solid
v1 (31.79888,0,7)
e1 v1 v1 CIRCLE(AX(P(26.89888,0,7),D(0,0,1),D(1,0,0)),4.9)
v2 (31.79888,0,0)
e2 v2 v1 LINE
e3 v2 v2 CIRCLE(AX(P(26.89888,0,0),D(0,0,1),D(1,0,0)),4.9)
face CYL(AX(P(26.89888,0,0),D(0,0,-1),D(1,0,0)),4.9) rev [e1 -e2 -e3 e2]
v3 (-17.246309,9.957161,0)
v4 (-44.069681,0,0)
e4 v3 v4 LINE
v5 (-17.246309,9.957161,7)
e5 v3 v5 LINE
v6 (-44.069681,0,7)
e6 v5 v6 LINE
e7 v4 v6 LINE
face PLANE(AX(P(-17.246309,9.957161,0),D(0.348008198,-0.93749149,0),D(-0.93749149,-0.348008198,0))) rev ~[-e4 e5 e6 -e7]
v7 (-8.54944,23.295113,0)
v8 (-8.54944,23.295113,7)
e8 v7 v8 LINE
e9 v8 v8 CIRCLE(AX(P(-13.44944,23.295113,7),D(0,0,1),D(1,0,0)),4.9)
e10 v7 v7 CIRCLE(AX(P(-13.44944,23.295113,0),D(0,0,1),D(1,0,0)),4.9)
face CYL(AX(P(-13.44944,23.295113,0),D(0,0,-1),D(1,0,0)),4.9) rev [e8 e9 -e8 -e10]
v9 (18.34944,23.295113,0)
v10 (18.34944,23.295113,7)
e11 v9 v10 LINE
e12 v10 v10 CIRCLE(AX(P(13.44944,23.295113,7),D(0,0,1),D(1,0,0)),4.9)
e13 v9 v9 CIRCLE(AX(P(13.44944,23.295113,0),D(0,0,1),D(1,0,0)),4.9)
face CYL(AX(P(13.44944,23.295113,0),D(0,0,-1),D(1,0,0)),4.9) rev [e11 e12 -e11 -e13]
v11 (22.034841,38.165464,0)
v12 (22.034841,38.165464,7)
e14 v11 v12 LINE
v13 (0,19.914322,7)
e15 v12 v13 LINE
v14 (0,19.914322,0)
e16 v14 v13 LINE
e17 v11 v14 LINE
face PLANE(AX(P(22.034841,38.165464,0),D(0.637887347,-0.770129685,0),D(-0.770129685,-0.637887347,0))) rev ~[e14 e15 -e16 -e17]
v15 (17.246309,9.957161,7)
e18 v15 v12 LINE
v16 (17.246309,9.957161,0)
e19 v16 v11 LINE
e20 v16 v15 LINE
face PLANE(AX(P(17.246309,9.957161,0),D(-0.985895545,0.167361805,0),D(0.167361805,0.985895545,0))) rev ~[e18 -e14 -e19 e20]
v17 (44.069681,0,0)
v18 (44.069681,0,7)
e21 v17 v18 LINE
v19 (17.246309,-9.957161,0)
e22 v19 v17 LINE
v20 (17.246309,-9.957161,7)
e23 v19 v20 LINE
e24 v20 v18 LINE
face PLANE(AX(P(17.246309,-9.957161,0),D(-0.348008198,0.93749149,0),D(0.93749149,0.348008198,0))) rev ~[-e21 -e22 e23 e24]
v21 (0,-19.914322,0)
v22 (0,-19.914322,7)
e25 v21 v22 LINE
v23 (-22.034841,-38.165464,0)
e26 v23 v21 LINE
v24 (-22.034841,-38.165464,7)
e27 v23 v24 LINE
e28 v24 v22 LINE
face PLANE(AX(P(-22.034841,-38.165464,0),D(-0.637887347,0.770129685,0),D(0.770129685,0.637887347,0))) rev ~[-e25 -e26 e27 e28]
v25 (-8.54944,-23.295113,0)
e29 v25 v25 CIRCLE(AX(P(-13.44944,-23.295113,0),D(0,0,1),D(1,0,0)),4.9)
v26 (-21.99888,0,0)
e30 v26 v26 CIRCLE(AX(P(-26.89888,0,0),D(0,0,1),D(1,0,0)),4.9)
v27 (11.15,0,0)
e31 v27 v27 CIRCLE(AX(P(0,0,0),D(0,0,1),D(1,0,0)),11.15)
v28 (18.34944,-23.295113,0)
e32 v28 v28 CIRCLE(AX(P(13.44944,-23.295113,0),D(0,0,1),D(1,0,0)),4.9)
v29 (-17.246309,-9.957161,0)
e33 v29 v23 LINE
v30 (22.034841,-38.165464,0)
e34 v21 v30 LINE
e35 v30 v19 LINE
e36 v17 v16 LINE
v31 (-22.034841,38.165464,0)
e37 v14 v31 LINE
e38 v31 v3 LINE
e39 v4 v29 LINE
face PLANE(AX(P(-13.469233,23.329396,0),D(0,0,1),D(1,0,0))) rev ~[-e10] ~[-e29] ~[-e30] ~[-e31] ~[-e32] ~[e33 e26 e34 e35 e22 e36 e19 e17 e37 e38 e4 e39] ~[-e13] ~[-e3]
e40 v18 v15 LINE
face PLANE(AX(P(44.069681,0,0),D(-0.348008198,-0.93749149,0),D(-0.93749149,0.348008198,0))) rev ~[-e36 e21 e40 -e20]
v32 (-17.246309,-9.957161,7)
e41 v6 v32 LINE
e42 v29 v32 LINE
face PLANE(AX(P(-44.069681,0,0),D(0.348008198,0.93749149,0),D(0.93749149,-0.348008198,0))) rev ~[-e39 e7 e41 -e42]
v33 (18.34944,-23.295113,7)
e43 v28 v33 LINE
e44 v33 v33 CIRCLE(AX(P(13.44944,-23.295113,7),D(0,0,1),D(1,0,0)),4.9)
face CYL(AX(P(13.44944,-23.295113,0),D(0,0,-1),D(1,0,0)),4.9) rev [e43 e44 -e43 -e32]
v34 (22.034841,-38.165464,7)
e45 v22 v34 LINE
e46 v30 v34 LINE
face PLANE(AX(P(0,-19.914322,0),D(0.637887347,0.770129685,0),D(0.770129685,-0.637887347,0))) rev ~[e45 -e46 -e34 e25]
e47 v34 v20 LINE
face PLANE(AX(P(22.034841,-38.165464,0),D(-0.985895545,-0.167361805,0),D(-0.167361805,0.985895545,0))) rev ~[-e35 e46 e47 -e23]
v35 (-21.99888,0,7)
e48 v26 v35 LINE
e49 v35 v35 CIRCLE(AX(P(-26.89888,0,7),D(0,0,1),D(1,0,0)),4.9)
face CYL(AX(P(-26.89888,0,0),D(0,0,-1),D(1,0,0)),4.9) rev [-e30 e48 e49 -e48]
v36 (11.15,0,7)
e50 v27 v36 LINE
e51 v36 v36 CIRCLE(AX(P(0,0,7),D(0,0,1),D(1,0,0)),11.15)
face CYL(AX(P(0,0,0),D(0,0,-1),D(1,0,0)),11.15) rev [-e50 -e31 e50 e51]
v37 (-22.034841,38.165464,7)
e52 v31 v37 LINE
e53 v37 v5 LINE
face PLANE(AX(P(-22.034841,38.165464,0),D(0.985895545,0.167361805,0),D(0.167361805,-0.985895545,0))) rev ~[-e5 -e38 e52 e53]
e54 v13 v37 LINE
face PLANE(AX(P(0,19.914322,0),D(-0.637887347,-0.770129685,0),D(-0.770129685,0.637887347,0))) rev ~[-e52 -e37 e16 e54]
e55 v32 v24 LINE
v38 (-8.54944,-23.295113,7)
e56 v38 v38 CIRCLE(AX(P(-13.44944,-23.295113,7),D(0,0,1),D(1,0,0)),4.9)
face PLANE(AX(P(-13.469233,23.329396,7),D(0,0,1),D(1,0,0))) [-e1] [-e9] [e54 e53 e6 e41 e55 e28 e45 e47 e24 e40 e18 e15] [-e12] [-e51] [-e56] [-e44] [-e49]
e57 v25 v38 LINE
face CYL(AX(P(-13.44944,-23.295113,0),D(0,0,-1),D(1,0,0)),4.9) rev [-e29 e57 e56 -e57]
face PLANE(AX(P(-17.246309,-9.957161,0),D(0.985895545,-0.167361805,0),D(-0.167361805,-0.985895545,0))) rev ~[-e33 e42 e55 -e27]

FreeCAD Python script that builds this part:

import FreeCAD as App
import Part
import Sketcher
from FreeCAD import Vector
Q = App.Units.Quantity


def add_polygon(sketch, points):
    """Adds a closed chain of lines whose ends are joined by coincident constraints."""
    first, n = sketch.GeometryCount, len(points)
    for a, b in zip(points, points[1:] + points[:1]):
        sketch.addGeometry(Part.LineSegment(App.Vector(*a, 0), App.Vector(*b, 0)), False)
    for i in range(n):
        sketch.addConstraint(Sketcher.Constraint("Coincident", first + i, 2, first + (i + 1) % n, 1))

doc = App.newDocument("Part")
body = doc.addObject("PartDesign::Body", "Body")

sketch1 = body.newObject("Sketcher::SketchObject", "Sketch")
sketch1.AttachmentSupport = (doc.getObject("XY_Plane"), [""])
sketch1.MapMode = "FlatFace"
add_polygon(sketch1, [(0, 19.9), (-22, 38.2), (-17.2, 10), (-44.1, 0), (-17.2, -10), (-22, -38.2), (0, -19.9), (22, -38.2), (17.2, -10), (44.1, 0), (17.2, 10), (22, 38.2)])
sketch1.addGeometry(Part.Circle(Vector(-13.4, -23.3, 0), Vector(0, 0, 1), 4.9), False)
sketch1.addGeometry(Part.Circle(Vector(13.4, -23.3, 0), Vector(0, 0, 1), 4.9), False)
sketch1.addGeometry(Part.Circle(Vector(-26.9, 0, 0), Vector(0, 0, 1), 4.9), False)
sketch1.addGeometry(Part.Circle(Vector(-13.4, 23.3, 0), Vector(0, 0, 1), 4.9), False)
sketch1.addGeometry(Part.Circle(Vector(0, 0, 0), Vector(0, 0, 1), 11.2), False)
sketch1.addGeometry(Part.Circle(Vector(26.9, 0, 0), Vector(0, 0, 1), 4.9), False)
sketch1.addGeometry(Part.Circle(Vector(13.4, 23.3, 0), Vector(0, 0, 1), 4.9), False)
sketch1.addConstraint(Sketcher.Constraint("Coincident", 16, 3, -1, 1))
sketch1.addConstraint(Sketcher.Constraint("Equal", 12, 13))
sketch1.addConstraint(Sketcher.Constraint("Equal", 13, 14))
sketch1.addConstraint(Sketcher.Constraint("Equal", 14, 15))
sketch1.addConstraint(Sketcher.Constraint("Equal", 15, 17))
sketch1.addConstraint(Sketcher.Constraint("Equal", 17, 18))
sketch1.addConstraint(Sketcher.Constraint("Symmetric", 13, 3, 15, 3, -1, 1))
sketch1.addConstraint(Sketcher.Constraint("Symmetric", 14, 3, 17, 3, -1, 1))
sketch1.addConstraint(Sketcher.Constraint("Symmetric", 12, 3, 18, 3, -1, 1))
sketch1.addConstraint(Sketcher.Constraint("Symmetric", 0, 2, 6, 2, -1, 1))
sketch1.addConstraint(Sketcher.Constraint("Symmetric", 1, 2, 7, 2, -1, 1))
sketch1.addConstraint(Sketcher.Constraint("Symmetric", 2, 2, 8, 2, -1, 1))
sketch1.addConstraint(Sketcher.Constraint("Symmetric", 3, 2, 9, 2, -1, 1))
sketch1.addConstraint(Sketcher.Constraint("Symmetric", 4, 2, 10, 2, -1, 1))
sketch1.addConstraint(Sketcher.Constraint("Symmetric", 5, 2, 11, 2, -1, 1))
sketch1.addConstraint(Sketcher.Constraint("Symmetric", 12, 3, 13, 3, -2))
sketch1.addConstraint(Sketcher.Constraint("Symmetric", 4, 2, 6, 2, -2))
sketch1.addConstraint(Sketcher.Constraint("Symmetric", 3, 2, 7, 2, -2))
sketch1.addConstraint(Sketcher.Constraint("PointOnObject", 14, 3, -1))
sketch1.addConstraint(Sketcher.Constraint("PointOnObject", 2, 2, -1))
sketch1.addConstraint(Sketcher.Constraint("PointOnObject", 5, 2, -2))
sketch1.addConstraint(Sketcher.Constraint("Equal", 0, 1))
sketch1.addConstraint(Sketcher.Constraint("Equal", 1, 2))
sketch1.addConstraint(Sketcher.Constraint("Diameter", 12, Q("9.8 mm")))
sketch1.addConstraint(Sketcher.Constraint("Diameter", 16, Q("22.3 mm")))
sketch1.addConstraint(Sketcher.Constraint("DistanceX", 0, 2, 15, 3, Q("8.585401 mm")))
sketch1.addConstraint(Sketcher.Constraint("DistanceX", 2, 2, 14, 3, Q("17.170802 mm")))
sketch1.addConstraint(Sketcher.Constraint("DistanceX", 12, 3, -1, 1, Q("13.44944 mm")))
sketch1.addConstraint(Sketcher.Constraint("DistanceX", 14, 3, -1, 1, Q("26.89888 mm")))
sketch1.addConstraint(Sketcher.Constraint("DistanceX", 1, 2, -1, 1, Q("17.246309 mm")))
sketch1.addConstraint(Sketcher.Constraint("DistanceY", -1, 1, 1, 2, Q("9.957161 mm")))
sketch1.addConstraint(Sketcher.Constraint("DistanceY", 15, 3, 0, 2, Q("14.870351 mm")))
pad1 = body.newObject("PartDesign::Pad", "Pad")
pad1.Profile = sketch1
pad1.Length = 7

doc.recompute()
